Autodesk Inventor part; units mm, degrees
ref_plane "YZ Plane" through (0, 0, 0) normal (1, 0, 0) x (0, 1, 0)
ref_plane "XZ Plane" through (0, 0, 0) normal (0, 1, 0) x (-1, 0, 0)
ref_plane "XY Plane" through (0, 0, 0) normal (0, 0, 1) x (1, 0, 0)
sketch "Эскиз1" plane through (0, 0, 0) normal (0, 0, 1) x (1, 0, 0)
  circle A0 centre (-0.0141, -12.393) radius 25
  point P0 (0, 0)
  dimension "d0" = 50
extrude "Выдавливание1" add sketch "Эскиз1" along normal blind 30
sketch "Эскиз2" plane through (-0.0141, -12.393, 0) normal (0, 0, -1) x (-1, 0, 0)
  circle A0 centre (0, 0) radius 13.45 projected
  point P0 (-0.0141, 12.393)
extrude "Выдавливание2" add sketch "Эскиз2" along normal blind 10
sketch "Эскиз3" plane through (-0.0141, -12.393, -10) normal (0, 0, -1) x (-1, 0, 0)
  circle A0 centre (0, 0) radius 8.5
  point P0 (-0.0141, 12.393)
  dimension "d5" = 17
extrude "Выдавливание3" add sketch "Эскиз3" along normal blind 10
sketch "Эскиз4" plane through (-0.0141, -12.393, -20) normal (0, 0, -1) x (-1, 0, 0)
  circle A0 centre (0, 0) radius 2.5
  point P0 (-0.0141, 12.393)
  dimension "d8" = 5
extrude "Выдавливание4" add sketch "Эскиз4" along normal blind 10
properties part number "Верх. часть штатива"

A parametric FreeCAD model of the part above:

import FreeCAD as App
import Part
import Sketcher

doc = App.newDocument("Part")
body = doc.addObject("PartDesign::Body", "Body")

sketch1 = body.newObject("Sketcher::SketchObject", "Sketch")
sketch1.AttachmentSupport = (doc.getObject("XY_Plane"), [""])
sketch1.MapMode = "FlatFace"
sketch1.addGeometry(Part.Circle(App.Vector(0, -12, 0), App.Vector(0, 0, 1), 25), False)
sketch1.addConstraint(Sketcher.Constraint("Diameter", 0, 50.0))
sketch1.addConstraint(Sketcher.Constraint("DistanceX", 0, 3, -1, 1, 0.014))
sketch1.addConstraint(Sketcher.Constraint("DistanceY", 0, 3, -1, 1, 12.393))
pad1 = body.newObject("PartDesign::Pad", "Pad")
pad1.Profile = sketch1
pad1.Length = 30

sketch2 = body.newObject("Sketcher::SketchObject", "Sketch001")
sketch2.AttachmentSupport = (doc.getObject("XY_Plane"), [""])
sketch2.MapMode = "FlatFace"
sketch2.addGeometry(Part.Circle(App.Vector(0, -12, 0), App.Vector(0, 0, 1), 13), False)
sketch2.addConstraint(Sketcher.Constraint("Diameter", 0, 26.9))
sketch2.addConstraint(Sketcher.Constraint("DistanceX", 0, 3, -1, 1, 0.014))
sketch2.addConstraint(Sketcher.Constraint("DistanceY", 0, 3, -1, 1, 12.393))
pad2 = body.newObject("PartDesign::Pad", "Pad001")
pad2.Profile = sketch2
pad2.Length = 10
pad2.Reversed = True

sketch3 = body.newObject("Sketcher::SketchObject", "Sketch002")
sketch3.AttachmentSupport = (doc.getObject("XY_Plane"), [""])
sketch3.MapMode = "FlatFace"
sketch3.AttachmentOffset = App.Placement(App.Vector(0, 0, -10), App.Rotation())
sketch3.addGeometry(Part.Circle(App.Vector(0, -12, 0), App.Vector(0, 0, 1), 8), False)
sketch3.addConstraint(Sketcher.Constraint("Diameter", 0, 17.0))
sketch3.addConstraint(Sketcher.Constraint("DistanceX", 0, 3, -1, 1, 0.014))
sketch3.addConstraint(Sketcher.Constraint("DistanceY", 0, 3, -1, 1, 12.393))
pad3 = body.newObject("PartDesign::Pad", "Pad002")
pad3.Profile = sketch3
pad3.Length = 10
pad3.Reversed = True

sketch4 = body.newObject("Sketcher::SketchObject", "Sketch003")
sketch4.AttachmentSupport = (doc.getObject("XY_Plane"), [""])
sketch4.MapMode = "FlatFace"
sketch4.AttachmentOffset = App.Placement(App.Vector(0, 0, -20), App.Rotation())
sketch4.addGeometry(Part.Circle(App.Vector(0, -12.4, 0), App.Vector(0, 0, 1), 2.5), False)
sketch4.addConstraint(Sketcher.Constraint("Diameter", 0, 5.0))
sketch4.addConstraint(Sketcher.Constraint("DistanceX", 0, 3, -1, 1, 0.014))
sketch4.addConstraint(Sketcher.Constraint("DistanceY", 0, 3, -1, 1, 12.393))
pad4 = body.newObject("PartDesign::Pad", "Pad003")
pad4.Profile = sketch4
pad4.Length = 10
pad4.Reversed = True

doc.recompute()
